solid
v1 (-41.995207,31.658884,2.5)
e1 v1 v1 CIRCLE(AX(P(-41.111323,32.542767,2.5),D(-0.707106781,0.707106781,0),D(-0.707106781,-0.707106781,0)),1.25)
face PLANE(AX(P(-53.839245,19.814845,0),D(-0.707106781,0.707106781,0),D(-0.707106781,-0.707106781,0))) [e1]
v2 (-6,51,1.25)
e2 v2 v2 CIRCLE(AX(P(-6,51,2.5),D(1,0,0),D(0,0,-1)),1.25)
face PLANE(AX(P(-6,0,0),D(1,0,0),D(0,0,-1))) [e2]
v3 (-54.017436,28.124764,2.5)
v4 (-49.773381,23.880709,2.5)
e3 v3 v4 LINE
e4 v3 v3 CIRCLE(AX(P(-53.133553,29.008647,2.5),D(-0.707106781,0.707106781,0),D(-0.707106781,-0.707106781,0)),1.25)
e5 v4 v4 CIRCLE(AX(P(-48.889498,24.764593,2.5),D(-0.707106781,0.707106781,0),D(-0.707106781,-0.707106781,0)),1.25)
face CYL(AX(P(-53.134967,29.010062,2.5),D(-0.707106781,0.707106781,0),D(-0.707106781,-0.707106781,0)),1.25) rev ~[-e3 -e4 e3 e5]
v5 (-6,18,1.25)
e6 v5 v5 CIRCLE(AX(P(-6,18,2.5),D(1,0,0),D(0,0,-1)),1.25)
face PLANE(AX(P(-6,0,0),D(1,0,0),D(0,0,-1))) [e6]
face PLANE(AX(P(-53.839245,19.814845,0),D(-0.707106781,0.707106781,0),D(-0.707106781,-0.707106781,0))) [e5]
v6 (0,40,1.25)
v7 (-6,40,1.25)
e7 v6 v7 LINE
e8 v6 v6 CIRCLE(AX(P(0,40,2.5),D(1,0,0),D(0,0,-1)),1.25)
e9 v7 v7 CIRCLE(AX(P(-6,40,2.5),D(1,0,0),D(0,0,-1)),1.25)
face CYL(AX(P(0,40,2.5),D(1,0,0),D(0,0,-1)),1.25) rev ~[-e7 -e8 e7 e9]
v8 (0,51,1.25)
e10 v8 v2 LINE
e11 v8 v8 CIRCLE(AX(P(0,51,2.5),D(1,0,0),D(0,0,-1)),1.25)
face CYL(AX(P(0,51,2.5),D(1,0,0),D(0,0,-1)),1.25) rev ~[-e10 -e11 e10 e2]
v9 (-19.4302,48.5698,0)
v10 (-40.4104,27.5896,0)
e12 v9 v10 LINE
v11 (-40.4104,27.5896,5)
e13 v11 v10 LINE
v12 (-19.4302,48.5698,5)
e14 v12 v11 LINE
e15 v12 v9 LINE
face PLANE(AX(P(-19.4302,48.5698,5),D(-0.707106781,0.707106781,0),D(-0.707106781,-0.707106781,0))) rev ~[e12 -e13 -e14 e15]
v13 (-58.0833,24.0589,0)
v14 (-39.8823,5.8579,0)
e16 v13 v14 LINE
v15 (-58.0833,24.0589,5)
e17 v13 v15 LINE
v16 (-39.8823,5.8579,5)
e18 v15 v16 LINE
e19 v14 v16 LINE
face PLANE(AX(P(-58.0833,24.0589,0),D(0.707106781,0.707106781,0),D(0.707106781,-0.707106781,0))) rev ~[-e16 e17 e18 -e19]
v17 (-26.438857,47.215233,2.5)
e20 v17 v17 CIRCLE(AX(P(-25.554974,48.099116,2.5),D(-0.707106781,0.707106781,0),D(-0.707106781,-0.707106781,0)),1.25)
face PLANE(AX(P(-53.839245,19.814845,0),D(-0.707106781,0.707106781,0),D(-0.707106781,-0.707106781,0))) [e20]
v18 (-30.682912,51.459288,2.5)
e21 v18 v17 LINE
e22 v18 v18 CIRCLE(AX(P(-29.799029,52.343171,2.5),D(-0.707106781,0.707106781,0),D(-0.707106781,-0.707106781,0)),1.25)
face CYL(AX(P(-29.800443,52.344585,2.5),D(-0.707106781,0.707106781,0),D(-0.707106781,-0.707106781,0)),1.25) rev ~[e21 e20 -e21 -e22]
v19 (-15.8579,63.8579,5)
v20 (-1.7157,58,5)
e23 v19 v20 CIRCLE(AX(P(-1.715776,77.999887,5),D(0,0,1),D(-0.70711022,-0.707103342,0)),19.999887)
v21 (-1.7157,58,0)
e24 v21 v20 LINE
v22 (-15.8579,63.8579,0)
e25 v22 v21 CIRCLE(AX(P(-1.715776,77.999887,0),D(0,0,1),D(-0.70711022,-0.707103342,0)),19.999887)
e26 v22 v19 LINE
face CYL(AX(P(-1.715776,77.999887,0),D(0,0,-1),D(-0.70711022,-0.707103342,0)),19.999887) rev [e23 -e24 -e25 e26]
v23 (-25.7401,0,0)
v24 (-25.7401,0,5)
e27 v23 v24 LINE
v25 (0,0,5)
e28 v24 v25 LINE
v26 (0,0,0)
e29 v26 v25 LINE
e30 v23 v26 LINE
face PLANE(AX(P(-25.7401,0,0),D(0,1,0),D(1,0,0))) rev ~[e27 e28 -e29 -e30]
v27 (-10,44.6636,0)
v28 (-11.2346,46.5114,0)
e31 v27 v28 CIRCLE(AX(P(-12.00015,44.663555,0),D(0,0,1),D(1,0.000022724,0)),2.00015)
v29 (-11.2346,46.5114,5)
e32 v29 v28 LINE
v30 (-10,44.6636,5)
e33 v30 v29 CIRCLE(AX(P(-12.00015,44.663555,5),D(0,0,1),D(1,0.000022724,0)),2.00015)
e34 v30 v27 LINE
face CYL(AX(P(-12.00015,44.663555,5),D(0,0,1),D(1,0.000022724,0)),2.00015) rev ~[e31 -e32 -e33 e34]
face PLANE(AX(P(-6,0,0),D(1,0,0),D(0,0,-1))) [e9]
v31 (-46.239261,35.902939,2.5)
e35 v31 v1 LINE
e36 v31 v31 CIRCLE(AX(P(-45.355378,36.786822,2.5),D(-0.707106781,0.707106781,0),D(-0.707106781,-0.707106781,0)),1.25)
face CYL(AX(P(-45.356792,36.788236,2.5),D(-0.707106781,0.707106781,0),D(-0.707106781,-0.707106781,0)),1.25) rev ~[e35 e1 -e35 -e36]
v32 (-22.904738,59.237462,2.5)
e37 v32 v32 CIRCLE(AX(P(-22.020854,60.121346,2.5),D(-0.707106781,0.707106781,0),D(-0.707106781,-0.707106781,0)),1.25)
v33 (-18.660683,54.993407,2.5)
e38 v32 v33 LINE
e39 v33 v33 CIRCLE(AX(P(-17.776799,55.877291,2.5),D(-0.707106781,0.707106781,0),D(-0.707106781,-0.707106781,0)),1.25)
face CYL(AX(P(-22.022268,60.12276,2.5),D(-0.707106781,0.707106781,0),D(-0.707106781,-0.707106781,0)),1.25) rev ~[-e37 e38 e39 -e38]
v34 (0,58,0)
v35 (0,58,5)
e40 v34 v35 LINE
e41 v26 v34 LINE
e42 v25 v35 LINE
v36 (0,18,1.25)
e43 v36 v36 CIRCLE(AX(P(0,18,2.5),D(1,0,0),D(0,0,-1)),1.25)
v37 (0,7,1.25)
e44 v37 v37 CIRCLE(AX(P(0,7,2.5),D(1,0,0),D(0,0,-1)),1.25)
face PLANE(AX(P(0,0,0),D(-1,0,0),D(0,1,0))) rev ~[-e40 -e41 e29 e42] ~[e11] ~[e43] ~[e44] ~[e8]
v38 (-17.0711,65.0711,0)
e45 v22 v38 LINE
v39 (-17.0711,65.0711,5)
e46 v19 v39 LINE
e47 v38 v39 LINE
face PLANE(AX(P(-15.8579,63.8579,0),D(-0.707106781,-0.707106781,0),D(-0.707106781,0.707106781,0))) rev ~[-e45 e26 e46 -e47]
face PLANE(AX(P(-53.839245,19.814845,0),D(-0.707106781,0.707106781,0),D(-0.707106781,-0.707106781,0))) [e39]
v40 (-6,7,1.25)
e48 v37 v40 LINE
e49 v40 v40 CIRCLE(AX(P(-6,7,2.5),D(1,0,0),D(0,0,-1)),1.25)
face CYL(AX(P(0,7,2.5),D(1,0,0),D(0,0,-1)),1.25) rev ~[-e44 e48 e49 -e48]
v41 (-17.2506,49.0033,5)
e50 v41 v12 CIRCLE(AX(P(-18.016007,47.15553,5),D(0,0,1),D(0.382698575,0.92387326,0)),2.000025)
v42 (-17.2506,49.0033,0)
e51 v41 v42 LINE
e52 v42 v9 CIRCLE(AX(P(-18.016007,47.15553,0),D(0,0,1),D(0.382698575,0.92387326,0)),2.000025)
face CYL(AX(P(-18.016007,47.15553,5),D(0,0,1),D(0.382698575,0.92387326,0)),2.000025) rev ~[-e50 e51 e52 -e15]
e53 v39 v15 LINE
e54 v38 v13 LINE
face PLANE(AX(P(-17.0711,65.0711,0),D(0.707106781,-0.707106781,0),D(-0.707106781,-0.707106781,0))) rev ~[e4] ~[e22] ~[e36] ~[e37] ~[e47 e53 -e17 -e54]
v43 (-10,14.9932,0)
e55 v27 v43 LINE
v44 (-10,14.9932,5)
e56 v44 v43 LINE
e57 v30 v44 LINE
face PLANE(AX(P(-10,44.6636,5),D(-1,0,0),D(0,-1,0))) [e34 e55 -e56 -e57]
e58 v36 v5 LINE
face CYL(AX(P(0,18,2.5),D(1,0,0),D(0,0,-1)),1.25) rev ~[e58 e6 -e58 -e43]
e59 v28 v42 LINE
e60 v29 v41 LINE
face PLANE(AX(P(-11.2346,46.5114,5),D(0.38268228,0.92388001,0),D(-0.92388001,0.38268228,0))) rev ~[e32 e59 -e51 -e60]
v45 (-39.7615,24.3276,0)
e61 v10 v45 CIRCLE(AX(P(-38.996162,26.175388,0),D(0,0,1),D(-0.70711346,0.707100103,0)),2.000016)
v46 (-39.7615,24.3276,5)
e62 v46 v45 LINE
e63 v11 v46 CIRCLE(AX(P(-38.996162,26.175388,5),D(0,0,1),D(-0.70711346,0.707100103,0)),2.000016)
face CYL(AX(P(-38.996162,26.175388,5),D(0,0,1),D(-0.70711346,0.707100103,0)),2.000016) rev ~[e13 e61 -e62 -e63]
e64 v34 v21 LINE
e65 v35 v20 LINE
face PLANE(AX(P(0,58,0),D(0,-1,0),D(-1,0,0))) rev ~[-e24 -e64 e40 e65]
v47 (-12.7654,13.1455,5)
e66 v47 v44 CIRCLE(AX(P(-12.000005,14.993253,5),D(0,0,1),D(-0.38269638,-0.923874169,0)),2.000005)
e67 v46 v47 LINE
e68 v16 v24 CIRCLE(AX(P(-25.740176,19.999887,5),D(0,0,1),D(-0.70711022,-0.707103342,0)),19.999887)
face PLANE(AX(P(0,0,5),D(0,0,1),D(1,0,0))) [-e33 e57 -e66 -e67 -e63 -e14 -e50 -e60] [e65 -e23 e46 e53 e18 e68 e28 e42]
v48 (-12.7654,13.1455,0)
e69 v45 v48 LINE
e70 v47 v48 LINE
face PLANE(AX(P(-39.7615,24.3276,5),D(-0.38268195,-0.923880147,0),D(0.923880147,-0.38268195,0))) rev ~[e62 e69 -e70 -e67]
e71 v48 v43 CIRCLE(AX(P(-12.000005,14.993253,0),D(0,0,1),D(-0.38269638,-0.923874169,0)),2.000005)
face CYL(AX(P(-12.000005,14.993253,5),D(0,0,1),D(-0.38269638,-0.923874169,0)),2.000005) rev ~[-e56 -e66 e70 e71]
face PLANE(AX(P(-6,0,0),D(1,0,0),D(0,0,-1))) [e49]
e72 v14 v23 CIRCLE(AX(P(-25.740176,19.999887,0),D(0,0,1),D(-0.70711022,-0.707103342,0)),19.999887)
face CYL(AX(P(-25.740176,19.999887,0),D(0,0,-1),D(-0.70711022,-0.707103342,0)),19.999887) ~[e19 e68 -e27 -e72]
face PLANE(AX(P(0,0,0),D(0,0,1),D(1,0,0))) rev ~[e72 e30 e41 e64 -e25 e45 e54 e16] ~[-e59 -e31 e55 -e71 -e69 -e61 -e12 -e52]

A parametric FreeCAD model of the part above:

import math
import FreeCAD as App
import Part
import Sketcher
Q = App.Units.Quantity

doc = App.newDocument("Part")
body = doc.addObject("PartDesign::Body", "Body")

# Sketch on XY plane
sketch1 = body.newObject("Sketcher::SketchObject", "Sketch")
sketch1.AttachmentSupport = (doc.getObject("XY_Plane"), [""])
sketch1.MapMode = "FlatFace"
sketch1.addGeometry([
    Part.LineSegment(App.Vector(-25.7, 0, 0), App.Vector(0, 0, 0)),  # 0
    Part.LineSegment(App.Vector(0, 0, 0), App.Vector(0, 58, 0)),  # 1
    Part.LineSegment(App.Vector(0, 58, 0), App.Vector(-1.7, 58, 0)),  # 2
    Part.ArcOfCircle(Part.Circle(App.Vector(-1.7, 78, 0), App.Vector(0, 0, 1), 20), math.radians(-135), math.radians(-90)),  # 3
    Part.LineSegment(App.Vector(-15.9, 63.9, 0), App.Vector(-17.1, 65.1, 0)),  # 4
    Part.LineSegment(App.Vector(-17.1, 65.1, 0), App.Vector(-58.1, 24.1, 0)),  # 5
    Part.LineSegment(App.Vector(-58.1, 24.1, 0), App.Vector(-39.9, 5.9, 0)),  # 6
    Part.ArcOfCircle(Part.Circle(App.Vector(-25.7, 20, 0), App.Vector(0, 0, 1), 20), math.radians(-135), math.radians(-90)),  # 7
], False)
sketch1.addConstraint([
    Sketcher.Constraint("Coincident", 0, 2, 1, 1),
    Sketcher.Constraint("Coincident", 1, 2, 2, 1),
    Sketcher.Constraint("Tangent", 2, 2, 3, 2),
    Sketcher.Constraint("Tangent", 3, 1, 4, 1),
    Sketcher.Constraint("Coincident", 4, 2, 5, 1),
    Sketcher.Constraint("Coincident", 5, 2, 6, 1),
    Sketcher.Constraint("Tangent", 6, 2, 7, 1),
    Sketcher.Constraint("Tangent", 7, 2, 0, 1),
    Sketcher.Constraint("Horizontal", 0),
    Sketcher.Constraint("Vertical", 1),
    Sketcher.Constraint("Horizontal", 2),
    Sketcher.Constraint("Coincident", 0, 2, -1, 1),
    Sketcher.Constraint("Equal", 3, 7),
    Sketcher.Constraint("Perpendicular", 4, 5),
    Sketcher.Constraint("Perpendicular", 5, 6),
    Sketcher.Constraint("Radius", 3, Q("20 mm")),
    Sketcher.Constraint("DistanceY", 1, 1, 1, 2, Q("58 mm")),
    Sketcher.Constraint("Angle", 4, Q("135 deg")),
    Sketcher.Constraint("Distance", 5, Q("58 mm")),
    Sketcher.Constraint("DistanceX", 0, 1, 0, 2, Q("25.74 mm")),
    Sketcher.Constraint("Distance", 6, Q("25.74 mm")),
])
pad1 = body.newObject("PartDesign::Pad", "Pad")
pad1.Profile = sketch1
pad1.Length = 5

# Sketch on XY plane
sketch2 = body.newObject("Sketcher::SketchObject", "Sketch001")
sketch2.AttachmentSupport = (doc.getObject("XY_Plane"), [""])
sketch2.MapMode = "FlatFace"
sketch2.AttachmentOffset = App.Placement(App.Vector(0, 0, 5), App.Rotation())
sketch2.addGeometry([
    Part.ArcOfCircle(Part.Circle(App.Vector(-18, 47.2, 0), App.Vector(0, 0, 1), 2), math.radians(67), math.radians(135)),  # 0
    Part.LineSegment(App.Vector(-19.4, 48.6, 0), App.Vector(-40.4, 27.6, 0)),  # 1
    Part.ArcOfCircle(Part.Circle(App.Vector(-39, 26.2, 0), App.Vector(0, 0, 1), 2), math.radians(135), math.radians(248)),  # 2
    Part.LineSegment(App.Vector(-39.8, 24.3, 0), App.Vector(-12.8, 13.1, 0)),  # 3
    Part.ArcOfCircle(Part.Circle(App.Vector(-12, 15, 0), App.Vector(0, 0, 1), 2), math.radians(-113), math.radians(0)),  # 4
    Part.LineSegment(App.Vector(-10, 15, 0), App.Vector(-10, 44.7, 0)),  # 5
    Part.ArcOfCircle(Part.Circle(App.Vector(-12, 44.7, 0), App.Vector(0, 0, 1), 2), math.radians(0), math.radians(67)),  # 6
    Part.LineSegment(App.Vector(-11.2, 46.5, 0), App.Vector(-17.3, 49, 0)),  # 7
], False)
sketch2.addConstraint([
    Sketcher.Constraint("Tangent", 0, 2, 1, 1),
    Sketcher.Constraint("Tangent", 1, 2, 2, 1),
    Sketcher.Constraint("Tangent", 2, 2, 3, 1),
    Sketcher.Constraint("Tangent", 3, 2, 4, 1),
    Sketcher.Constraint("Tangent", 4, 2, 5, 1),
    Sketcher.Constraint("Tangent", 5, 2, 6, 1),
    Sketcher.Constraint("Tangent", 6, 2, 7, 1),
    Sketcher.Constraint("Tangent", 7, 2, 0, 1),
    Sketcher.Constraint("Vertical", 5),
    Sketcher.Constraint("Equal", 0, 2),
    Sketcher.Constraint("Equal", 2, 4),
    Sketcher.Constraint("Equal", 4, 6),
    Sketcher.Constraint("Parallel", 3, 7),
    Sketcher.Constraint("Radius", 0, Q("2 mm")),
    Sketcher.Constraint("DistanceX", 4, 2, -1, 1, Q("10 mm")),
    Sketcher.Constraint("Angle", 1, Q("-135 deg")),
    Sketcher.Constraint("Angle", 3, Q("-22.5 deg")),
    Sketcher.Constraint("DistanceY", 3, 2, 2, 3, Q("13.03 mm")),
    Sketcher.Constraint("DistanceY", 5, 1, 5, 2, Q("29.6704 mm")),
    Sketcher.Constraint("DistanceY", -1, 1, 0, 3, Q("47.1556 mm")),
])
pocket1 = body.newObject("PartDesign::Pocket", "Pocket")
pocket1.Profile = sketch2
pocket1.Length = 6

# Sketch on an angled plane
sketch3 = body.newObject("Sketcher::SketchObject", "Sketch002")
sketch3.Placement = App.Placement(App.Vector(-58.0833, 24.0589, 0), App.Rotation(App.Vector(-0.707106781, -0.707106781, 0), App.Vector(0, 0, 0.999999999), App.Vector(-0.707106781, 0.707106781, 0), "ZXY"))
sketch3.addGeometry([
    Part.Circle(App.Vector(-51, 2.5, 0), App.Vector(0, 0, 1), 1.2),
    Part.Circle(App.Vector(-40, 2.5, 0), App.Vector(0, 0, 1), 1.2),
    Part.Circle(App.Vector(-18, 2.5, 0), App.Vector(0, 0, 1), 1.2),
    Part.Circle(App.Vector(-7, 2.5, 0), App.Vector(0, 0, 1), 1.2),
], False)
sketch3.addConstraint([
    Sketcher.Constraint("Equal", 0, 1),
    Sketcher.Constraint("Equal", 1, 2),
    Sketcher.Constraint("Equal", 2, 3),
    Sketcher.Constraint("Horizontal", 0, 3, 1, 3),
    Sketcher.Constraint("Horizontal", 1, 3, 2, 3),
    Sketcher.Constraint("Horizontal", 2, 3, 3, 3),
    Sketcher.Constraint("Diameter", 0, Q("2.5 mm")),
    Sketcher.Constraint("DistanceX", 3, 3, -1, 1, Q("7 mm")),
    Sketcher.Constraint("DistanceX", 0, 3, 1, 3, Q("11 mm")),
    Sketcher.Constraint("DistanceX", 1, 3, 2, 3, Q("22 mm")),
    Sketcher.Constraint("DistanceX", 2, 3, 3, 3, Q("11 mm")),
    Sketcher.Constraint("DistanceY", -1, 1, 0, 3, Q("2.5 mm")),
])
pocket2 = body.newObject("PartDesign::Pocket", "Pocket001")
pocket2.Profile = sketch3
pocket2.Length = 6

# Sketch on YZ plane
sketch4 = body.newObject("Sketcher::SketchObject", "Sketch003")
sketch4.AttachmentSupport = (doc.getObject("YZ_Plane"), [""])
sketch4.MapMode = "FlatFace"
sketch4.addGeometry([
    Part.Circle(App.Vector(51, 2.5, 0), App.Vector(0, 0, 1), 1.2),
    Part.Circle(App.Vector(40, 2.5, 0), App.Vector(0, 0, 1), 1.2),
    Part.Circle(App.Vector(18, 2.5, 0), App.Vector(0, 0, 1), 1.2),
    Part.Circle(App.Vector(7, 2.5, 0), App.Vector(0, 0, 1), 1.2),
], False)
sketch4.addConstraint([
    Sketcher.Constraint("Equal", 0, 1),
    Sketcher.Constraint("Equal", 1, 2),
    Sketcher.Constraint("Equal", 2, 3),
    Sketcher.Constraint("Horizontal", 0, 3, 1, 3),
    Sketcher.Constraint("Horizontal", 1, 3, 2, 3),
    Sketcher.Constraint("Horizontal", 2, 3, 3, 3),
    Sketcher.Constraint("Diameter", 0, Q("2.5 mm")),
    Sketcher.Constraint("DistanceX", -1, 1, 3, 3, Q("7 mm")),
    Sketcher.Constraint("DistanceX", 1, 3, 0, 3, Q("11 mm")),
    Sketcher.Constraint("DistanceX", 3, 3, 2, 3, Q("11 mm")),
    Sketcher.Constraint("DistanceY", -1, 1, 0, 3, Q("2.5 mm")),
    Sketcher.Constraint("DistanceX", -1, 1, 0, 3, Q("51 mm")),
])
pocket3 = body.newObject("PartDesign::Pocket", "Pocket002")
pocket3.Profile = sketch4
pocket3.Length = 6

doc.recompute()
